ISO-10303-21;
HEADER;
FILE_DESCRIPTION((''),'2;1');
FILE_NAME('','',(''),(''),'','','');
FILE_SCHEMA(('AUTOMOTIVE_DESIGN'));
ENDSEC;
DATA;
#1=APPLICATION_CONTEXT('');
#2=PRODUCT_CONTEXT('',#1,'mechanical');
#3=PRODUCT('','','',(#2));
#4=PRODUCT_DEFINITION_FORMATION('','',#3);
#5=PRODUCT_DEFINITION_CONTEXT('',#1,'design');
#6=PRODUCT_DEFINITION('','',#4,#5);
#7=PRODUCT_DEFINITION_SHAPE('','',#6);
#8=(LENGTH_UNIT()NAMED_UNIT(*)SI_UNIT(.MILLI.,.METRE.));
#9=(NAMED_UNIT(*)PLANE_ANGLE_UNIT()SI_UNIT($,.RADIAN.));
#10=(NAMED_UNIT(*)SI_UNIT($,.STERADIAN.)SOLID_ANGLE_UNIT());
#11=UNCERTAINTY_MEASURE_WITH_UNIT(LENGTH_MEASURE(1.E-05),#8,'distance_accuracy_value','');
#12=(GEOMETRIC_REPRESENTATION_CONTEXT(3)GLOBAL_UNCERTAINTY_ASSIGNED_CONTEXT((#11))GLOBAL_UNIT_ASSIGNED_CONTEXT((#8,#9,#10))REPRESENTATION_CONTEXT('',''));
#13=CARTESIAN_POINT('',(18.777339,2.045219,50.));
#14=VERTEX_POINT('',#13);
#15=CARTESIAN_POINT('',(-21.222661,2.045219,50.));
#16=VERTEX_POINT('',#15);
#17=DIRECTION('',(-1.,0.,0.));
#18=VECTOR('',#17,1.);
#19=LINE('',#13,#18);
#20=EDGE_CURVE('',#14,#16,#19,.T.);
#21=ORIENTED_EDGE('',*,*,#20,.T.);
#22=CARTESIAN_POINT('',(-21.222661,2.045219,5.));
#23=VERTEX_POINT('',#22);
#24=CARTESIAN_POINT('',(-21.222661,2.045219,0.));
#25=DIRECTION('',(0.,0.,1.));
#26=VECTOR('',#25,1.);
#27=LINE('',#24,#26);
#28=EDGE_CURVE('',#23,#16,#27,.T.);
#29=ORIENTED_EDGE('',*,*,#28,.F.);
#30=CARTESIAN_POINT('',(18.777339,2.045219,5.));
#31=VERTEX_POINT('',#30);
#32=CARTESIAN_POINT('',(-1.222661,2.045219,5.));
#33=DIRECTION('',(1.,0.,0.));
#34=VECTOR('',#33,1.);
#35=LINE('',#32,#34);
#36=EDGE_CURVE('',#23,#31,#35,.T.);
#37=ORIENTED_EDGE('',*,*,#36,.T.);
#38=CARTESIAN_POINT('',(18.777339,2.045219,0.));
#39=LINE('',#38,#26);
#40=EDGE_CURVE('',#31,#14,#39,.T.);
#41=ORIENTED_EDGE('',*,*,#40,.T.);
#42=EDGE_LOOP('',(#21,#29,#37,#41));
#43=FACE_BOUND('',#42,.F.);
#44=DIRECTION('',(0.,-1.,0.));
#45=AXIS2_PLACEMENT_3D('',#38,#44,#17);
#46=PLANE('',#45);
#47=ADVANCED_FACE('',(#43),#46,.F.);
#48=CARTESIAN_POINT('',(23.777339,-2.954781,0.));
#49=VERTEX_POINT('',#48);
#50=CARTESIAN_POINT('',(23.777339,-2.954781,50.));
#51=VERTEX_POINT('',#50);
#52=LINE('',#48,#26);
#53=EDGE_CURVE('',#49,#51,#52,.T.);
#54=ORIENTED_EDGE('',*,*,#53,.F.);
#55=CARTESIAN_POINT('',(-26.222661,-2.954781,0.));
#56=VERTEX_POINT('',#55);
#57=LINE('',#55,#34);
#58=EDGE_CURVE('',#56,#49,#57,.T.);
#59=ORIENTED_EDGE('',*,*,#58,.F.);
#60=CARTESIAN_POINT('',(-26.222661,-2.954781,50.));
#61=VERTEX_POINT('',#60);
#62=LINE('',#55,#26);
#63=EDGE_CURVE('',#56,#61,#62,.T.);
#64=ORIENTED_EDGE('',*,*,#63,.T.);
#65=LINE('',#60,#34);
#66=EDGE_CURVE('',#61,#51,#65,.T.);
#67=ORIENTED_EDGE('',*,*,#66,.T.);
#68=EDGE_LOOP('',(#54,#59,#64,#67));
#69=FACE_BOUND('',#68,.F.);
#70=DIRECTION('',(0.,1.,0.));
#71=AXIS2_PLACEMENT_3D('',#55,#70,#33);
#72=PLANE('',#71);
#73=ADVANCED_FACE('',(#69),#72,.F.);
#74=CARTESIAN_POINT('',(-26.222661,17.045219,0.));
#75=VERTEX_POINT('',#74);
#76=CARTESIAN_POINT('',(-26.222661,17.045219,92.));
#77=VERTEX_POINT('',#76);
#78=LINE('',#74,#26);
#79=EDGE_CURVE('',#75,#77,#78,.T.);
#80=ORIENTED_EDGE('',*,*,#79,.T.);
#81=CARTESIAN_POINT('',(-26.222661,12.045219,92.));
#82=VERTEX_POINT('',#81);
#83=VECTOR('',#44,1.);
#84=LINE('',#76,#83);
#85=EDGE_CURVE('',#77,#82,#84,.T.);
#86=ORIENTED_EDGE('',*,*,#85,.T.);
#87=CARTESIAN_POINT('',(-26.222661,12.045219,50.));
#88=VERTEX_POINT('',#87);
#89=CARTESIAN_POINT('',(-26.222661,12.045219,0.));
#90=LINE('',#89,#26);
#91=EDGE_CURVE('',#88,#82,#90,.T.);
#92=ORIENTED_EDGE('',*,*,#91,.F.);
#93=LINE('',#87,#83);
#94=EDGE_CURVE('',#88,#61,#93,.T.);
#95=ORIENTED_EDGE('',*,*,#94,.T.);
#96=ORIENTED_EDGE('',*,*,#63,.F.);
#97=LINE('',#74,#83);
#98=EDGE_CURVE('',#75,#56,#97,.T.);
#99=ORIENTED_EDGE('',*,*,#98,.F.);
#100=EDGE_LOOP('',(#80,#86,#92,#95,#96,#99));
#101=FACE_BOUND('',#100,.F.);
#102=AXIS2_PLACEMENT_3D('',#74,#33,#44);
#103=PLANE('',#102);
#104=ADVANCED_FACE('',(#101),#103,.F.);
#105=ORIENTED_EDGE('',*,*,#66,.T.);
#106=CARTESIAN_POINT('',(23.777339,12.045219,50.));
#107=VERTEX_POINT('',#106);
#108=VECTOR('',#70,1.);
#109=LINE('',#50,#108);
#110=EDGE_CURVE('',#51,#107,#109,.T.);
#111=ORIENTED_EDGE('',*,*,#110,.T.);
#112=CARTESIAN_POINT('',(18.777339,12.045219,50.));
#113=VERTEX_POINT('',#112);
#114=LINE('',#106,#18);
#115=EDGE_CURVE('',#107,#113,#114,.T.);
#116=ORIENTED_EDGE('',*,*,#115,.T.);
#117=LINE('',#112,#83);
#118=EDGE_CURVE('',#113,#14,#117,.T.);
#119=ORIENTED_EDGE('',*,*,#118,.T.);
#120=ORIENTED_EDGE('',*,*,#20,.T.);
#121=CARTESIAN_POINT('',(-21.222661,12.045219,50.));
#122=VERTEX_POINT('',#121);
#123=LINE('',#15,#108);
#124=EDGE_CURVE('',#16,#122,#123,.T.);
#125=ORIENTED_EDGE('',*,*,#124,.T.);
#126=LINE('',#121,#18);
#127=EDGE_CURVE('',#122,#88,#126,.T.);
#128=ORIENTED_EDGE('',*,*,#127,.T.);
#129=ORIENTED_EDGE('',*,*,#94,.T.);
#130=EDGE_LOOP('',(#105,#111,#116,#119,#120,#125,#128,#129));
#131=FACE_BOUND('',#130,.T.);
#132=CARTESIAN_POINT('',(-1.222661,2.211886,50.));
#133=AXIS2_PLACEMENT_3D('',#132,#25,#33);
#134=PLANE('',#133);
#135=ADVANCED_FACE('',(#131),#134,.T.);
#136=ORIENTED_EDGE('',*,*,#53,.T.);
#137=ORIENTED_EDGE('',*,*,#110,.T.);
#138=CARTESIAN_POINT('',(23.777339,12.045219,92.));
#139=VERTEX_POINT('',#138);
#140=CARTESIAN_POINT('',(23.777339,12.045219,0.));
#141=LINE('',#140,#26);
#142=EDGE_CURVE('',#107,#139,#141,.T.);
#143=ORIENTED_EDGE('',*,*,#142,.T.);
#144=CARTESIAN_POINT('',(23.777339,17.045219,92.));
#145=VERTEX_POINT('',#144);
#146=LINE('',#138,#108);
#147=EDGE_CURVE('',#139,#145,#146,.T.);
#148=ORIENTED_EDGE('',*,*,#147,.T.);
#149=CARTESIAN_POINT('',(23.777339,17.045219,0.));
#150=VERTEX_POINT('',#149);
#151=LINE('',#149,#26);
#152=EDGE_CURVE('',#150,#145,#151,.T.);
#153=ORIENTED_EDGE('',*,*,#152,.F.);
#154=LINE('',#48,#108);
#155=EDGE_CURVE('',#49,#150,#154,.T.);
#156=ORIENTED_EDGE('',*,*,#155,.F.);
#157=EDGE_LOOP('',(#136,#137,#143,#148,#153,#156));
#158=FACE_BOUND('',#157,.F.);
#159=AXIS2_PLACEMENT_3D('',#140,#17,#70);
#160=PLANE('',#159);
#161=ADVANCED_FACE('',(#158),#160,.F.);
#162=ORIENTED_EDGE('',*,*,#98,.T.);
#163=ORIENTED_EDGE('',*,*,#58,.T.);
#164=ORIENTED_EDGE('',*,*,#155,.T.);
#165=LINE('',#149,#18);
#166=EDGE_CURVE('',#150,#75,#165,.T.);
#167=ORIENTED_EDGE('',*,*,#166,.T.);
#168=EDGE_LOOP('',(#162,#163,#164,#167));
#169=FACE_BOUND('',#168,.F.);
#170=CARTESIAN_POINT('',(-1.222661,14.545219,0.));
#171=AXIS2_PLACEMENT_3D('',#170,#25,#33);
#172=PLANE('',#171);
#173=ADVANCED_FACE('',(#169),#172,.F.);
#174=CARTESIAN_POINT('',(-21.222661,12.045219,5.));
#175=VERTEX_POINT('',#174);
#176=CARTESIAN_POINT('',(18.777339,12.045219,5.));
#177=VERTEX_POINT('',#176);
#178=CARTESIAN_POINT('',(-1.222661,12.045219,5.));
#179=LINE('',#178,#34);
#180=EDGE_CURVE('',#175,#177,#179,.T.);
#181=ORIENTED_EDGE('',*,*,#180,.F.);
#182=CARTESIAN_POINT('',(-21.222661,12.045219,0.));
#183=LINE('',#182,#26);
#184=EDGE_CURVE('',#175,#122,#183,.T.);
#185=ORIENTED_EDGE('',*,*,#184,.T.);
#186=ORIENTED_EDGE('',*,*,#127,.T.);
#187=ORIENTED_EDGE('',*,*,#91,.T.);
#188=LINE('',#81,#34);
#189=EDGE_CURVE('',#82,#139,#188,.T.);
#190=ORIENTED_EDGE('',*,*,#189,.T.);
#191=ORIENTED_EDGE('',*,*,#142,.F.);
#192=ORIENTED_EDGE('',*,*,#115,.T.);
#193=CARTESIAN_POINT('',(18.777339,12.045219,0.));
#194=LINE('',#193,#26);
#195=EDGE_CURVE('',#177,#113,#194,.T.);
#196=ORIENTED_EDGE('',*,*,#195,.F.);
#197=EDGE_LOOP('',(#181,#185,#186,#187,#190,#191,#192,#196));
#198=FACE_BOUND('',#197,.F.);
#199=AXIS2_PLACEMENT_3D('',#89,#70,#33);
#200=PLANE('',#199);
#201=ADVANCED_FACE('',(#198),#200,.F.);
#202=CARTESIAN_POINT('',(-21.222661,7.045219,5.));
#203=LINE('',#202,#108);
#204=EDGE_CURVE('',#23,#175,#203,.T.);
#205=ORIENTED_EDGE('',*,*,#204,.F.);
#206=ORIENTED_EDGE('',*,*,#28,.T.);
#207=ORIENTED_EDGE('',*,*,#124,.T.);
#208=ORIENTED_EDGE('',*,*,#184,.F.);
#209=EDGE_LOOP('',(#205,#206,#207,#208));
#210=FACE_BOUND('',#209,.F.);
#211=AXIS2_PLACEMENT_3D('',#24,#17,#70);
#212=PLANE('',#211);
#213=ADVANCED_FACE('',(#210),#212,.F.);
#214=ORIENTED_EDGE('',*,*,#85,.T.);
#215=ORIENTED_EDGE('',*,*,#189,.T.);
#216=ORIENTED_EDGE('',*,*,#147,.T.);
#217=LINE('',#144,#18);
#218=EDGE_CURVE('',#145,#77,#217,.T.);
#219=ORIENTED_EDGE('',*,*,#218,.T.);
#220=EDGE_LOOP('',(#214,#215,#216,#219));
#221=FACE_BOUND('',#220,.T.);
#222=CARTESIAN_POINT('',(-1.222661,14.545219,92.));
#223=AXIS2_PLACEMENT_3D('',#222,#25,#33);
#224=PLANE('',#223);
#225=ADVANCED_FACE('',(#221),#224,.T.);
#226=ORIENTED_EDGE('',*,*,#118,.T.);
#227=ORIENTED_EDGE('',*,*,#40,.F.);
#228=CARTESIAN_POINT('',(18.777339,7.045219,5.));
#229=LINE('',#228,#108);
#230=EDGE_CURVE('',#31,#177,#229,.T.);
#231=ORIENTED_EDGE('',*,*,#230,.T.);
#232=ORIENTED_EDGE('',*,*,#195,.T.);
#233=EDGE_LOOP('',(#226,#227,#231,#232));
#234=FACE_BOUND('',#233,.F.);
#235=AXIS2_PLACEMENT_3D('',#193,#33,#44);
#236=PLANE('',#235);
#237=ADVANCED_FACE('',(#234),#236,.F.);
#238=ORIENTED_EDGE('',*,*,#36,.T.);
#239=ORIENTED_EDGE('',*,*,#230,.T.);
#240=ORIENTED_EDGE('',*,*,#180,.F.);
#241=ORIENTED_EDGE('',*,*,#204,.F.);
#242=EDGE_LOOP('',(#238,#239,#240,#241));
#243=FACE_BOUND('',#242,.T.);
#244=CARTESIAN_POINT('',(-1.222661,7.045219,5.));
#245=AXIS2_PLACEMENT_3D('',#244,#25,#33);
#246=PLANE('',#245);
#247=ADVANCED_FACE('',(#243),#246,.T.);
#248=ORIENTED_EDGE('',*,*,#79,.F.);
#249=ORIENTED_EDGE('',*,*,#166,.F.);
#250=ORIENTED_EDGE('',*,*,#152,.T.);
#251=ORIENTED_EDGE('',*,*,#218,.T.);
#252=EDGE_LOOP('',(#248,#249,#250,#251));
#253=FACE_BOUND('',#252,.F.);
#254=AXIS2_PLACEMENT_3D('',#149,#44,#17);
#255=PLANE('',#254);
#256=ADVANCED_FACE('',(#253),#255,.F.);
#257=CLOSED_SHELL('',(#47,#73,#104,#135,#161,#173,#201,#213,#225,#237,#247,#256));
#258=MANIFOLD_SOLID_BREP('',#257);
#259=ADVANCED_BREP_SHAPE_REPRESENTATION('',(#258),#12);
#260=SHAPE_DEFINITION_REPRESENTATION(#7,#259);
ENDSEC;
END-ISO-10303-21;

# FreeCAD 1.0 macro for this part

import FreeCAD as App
import Part
import Sketcher
from FreeCAD import Vector

doc = App.newDocument("Part")
body = doc.addObject("PartDesign::Body", "Body")

sketch1 = body.newObject("Sketcher::SketchObject", "Sketch")
sketch1.AttachmentSupport = (doc.getObject("XY_Plane"), [""])
sketch1.MapMode = "FlatFace"
sketch1.addGeometry(Part.LineSegment(Vector(-21.222661, 12.045219, 0), Vector(-21.222661, 2.045219, 0)), False)
sketch1.addGeometry(Part.LineSegment(Vector(-21.222661, 2.045219, 0), Vector(18.777339, 2.045219, 0)), False)
sketch1.addGeometry(Part.LineSegment(Vector(18.777339, 2.045219, 0), Vector(18.777339, 12.045219, 0)), False)
sketch1.addGeometry(Part.LineSegment(Vector(18.777339, 12.045219, 0), Vector(-21.222661, 12.045219, 0)), False)
sketch1.addConstraint(Sketcher.Constraint("Coincident", 0, 2, 1, 1))
sketch1.addConstraint(Sketcher.Constraint("Coincident", 1, 2, 2, 1))
sketch1.addConstraint(Sketcher.Constraint("Coincident", 2, 2, 3, 1))
sketch1.addConstraint(Sketcher.Constraint("Coincident", 3, 2, 0, 1))
sketch1.addConstraint(Sketcher.Constraint("Vertical", 0))
sketch1.addConstraint(Sketcher.Constraint("Horizontal", 1))
sketch1.addConstraint(Sketcher.Constraint("Vertical", 2))
sketch1.addConstraint(Sketcher.Constraint("Horizontal", 3))
sketch1.addConstraint(Sketcher.Constraint("DistanceX", 1, 1, 1, 2, 40.0))
sketch1.addConstraint(Sketcher.Constraint("DistanceY", 0, 2, 0, 1, 10.0))
sketch1.addConstraint(Sketcher.Constraint("DistanceX", 0, 2, -1, 1, 21.222661))
sketch1.addConstraint(Sketcher.Constraint("DistanceY", -1, 1, 0, 2, 2.045219))
pad1 = body.newObject("PartDesign::Pad", "Pad")
pad1.Profile = sketch1
pad1.Length = 5

sketch2 = body.newObject("Sketcher::SketchObject", "Sketch001")
sketch2.AttachmentSupport = (doc.getObject("XY_Plane"), [""])
sketch2.MapMode = "FlatFace"
sketch2.addGeometry(Part.LineSegment(Vector(-26.222661, 12.045219, 0), Vector(23.777339, 12.045219, 0)), False)
sketch2.addGeometry(Part.LineSegment(Vector(23.777339, 12.045219, 0), Vector(23.777339, 17.045219, 0)), False)
sketch2.addGeometry(Part.LineSegment(Vector(23.777339, 17.045219, 0), Vector(-26.222661, 17.045219, 0)), False)
sketch2.addGeometry(Part.LineSegment(Vector(-26.222661, 17.045219, 0), Vector(-26.222661, 12.045219, 0)), False)
sketch2.addConstraint(Sketcher.Constraint("Coincident", 0, 2, 1, 1))
sketch2.addConstraint(Sketcher.Constraint("Coincident", 1, 2, 2, 1))
sketch2.addConstraint(Sketcher.Constraint("Coincident", 2, 2, 3, 1))
sketch2.addConstraint(Sketcher.Constraint("Coincident", 3, 2, 0, 1))
sketch2.addConstraint(Sketcher.Constraint("Horizontal", 0))
sketch2.addConstraint(Sketcher.Constraint("Vertical", 1))
sketch2.addConstraint(Sketcher.Constraint("Horizontal", 2))
sketch2.addConstraint(Sketcher.Constraint("Vertical", 3))
sketch2.addConstraint(Sketcher.Constraint("DistanceX", 0, 1, 0, 2, 50.0))
sketch2.addConstraint(Sketcher.Constraint("DistanceY", 1, 1, 1, 2, 5.0))
sketch2.addConstraint(Sketcher.Constraint("DistanceX", -1, 1, 0, 2, 23.777339))
sketch2.addConstraint(Sketcher.Constraint("DistanceY", -1, 1, 0, 2, 12.045219))
pad2 = body.newObject("PartDesign::Pad", "Pad001")
pad2.Profile = sketch2
pad2.Length = 92

sketch3 = body.newObject("Sketcher::SketchObject", "Sketch002")
sketch3.AttachmentSupport = (doc.getObject("XY_Plane"), [""])
sketch3.MapMode = "FlatFace"
sketch3.addGeometry(Part.LineSegment(Vector(-21.222661, 2.045219, 0), Vector(-21.222661, 12.045219, 0)), False)
sketch3.addGeometry(Part.LineSegment(Vector(-21.222661, 12.045219, 0), Vector(-26.222661, 12.045219, 0)), False)
sketch3.addGeometry(Part.LineSegment(Vector(-26.222661, 12.045219, 0), Vector(-26.222661, -2.954781, 0)), False)
sketch3.addGeometry(Part.LineSegment(Vector(-26.222661, -2.954781, 0), Vector(23.777339, -2.954781, 0)), False)
sketch3.addGeometry(Part.LineSegment(Vector(23.777339, -2.954781, 0), Vector(23.777339, 12.045219, 0)), False)
sketch3.addGeometry(Part.LineSegment(Vector(23.777339, 12.045219, 0), Vector(18.777339, 12.045219, 0)), False)
sketch3.addGeometry(Part.LineSegment(Vector(18.777339, 12.045219, 0), Vector(18.777339, 2.045219, 0)), False)
sketch3.addGeometry(Part.LineSegment(Vector(18.777339, 2.045219, 0), Vector(-21.222661, 2.045219, 0)), False)
sketch3.addConstraint(Sketcher.Constraint("Coincident", 0, 2, 1, 1))
sketch3.addConstraint(Sketcher.Constraint("Coincident", 1, 2, 2, 1))
sketch3.addConstraint(Sketcher.Constraint("Coincident", 2, 2, 3, 1))
sketch3.addConstraint(Sketcher.Constraint("Coincident", 3, 2, 4, 1))
sketch3.addConstraint(Sketcher.Constraint("Coincident", 4, 2, 5, 1))
sketch3.addConstraint(Sketcher.Constraint("Coincident", 5, 2, 6, 1))
sketch3.addConstraint(Sketcher.Constraint("Coincident", 6, 2, 7, 1))
sketch3.addConstraint(Sketcher.Constraint("Coincident", 7, 2, 0, 1))
sketch3.addConstraint(Sketcher.Constraint("Vertical", 0))
sketch3.addConstraint(Sketcher.Constraint("Horizontal", 1))
sketch3.addConstraint(Sketcher.Constraint("Vertical", 2))
sketch3.addConstraint(Sketcher.Constraint("Horizontal", 3))
sketch3.addConstraint(Sketcher.Constraint("Vertical", 4))
sketch3.addConstraint(Sketcher.Constraint("Horizontal", 5))
sketch3.addConstraint(Sketcher.Constraint("Vertical", 6))
sketch3.addConstraint(Sketcher.Constraint("Horizontal", 7))
sketch3.addConstraint(Sketcher.Constraint("Horizontal", 1, 2, 4, 2))
sketch3.addConstraint(Sketcher.Constraint("Equal", 1, 5))
sketch3.addConstraint(Sketcher.Constraint("DistanceX", 1, 2, 1, 1, 5.0))
sketch3.addConstraint(Sketcher.Constraint("DistanceX", 3, 1, 3, 2, 50.0))
sketch3.addConstraint(Sketcher.Constraint("DistanceY", 0, 1, 0, 2, 10.0))
sketch3.addConstraint(Sketcher.Constraint("DistanceY", 2, 2, 2, 1, 15.0))
sketch3.addConstraint(Sketcher.Constraint("DistanceX", 0, 2, -1, 1, 21.222661))
sketch3.addConstraint(Sketcher.Constraint("DistanceY", -1, 1, 0, 2, 12.045219))
pad3 = body.newObject("PartDesign::Pad", "Pad002")
pad3.Profile = sketch3
pad3.Length = 50

doc.recompute()
